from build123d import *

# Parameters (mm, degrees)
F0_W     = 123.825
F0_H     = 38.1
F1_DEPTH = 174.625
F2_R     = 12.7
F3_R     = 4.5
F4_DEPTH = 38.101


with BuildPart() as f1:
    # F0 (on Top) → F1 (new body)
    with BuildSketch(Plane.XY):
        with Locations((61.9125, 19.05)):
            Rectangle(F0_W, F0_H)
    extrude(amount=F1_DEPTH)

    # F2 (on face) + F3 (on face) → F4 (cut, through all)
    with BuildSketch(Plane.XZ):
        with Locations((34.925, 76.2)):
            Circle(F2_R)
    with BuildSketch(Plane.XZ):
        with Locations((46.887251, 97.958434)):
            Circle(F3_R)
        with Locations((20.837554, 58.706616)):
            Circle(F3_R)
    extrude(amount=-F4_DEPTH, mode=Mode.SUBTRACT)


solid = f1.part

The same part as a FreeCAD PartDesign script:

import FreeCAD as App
import Part
import Sketcher
Q = App.Units.Quantity

doc = App.newDocument("Part")
body = doc.addObject("PartDesign::Body", "Body")

# Sketch on XY plane
sketch1 = body.newObject("Sketcher::SketchObject", "Sketch")
sketch1.AttachmentSupport = (doc.getObject("XY_Plane"), [""])
sketch1.MapMode = "FlatFace"
sketch1.addGeometry([
    Part.LineSegment(App.Vector(0, 38, 0), App.Vector(0, 0, 0)),
    Part.LineSegment(App.Vector(0, 0, 0), App.Vector(124, 0, 0)),
    Part.LineSegment(App.Vector(124, 0, 0), App.Vector(124, 38, 0)),
    Part.LineSegment(App.Vector(124, 38, 0), App.Vector(0, 38, 0)),
], False)
sketch1.addConstraint([
    Sketcher.Constraint("Coincident", 0, 2, 1, 1),
    Sketcher.Constraint("Coincident", 1, 2, 2, 1),
    Sketcher.Constraint("Coincident", 2, 2, 3, 1),
    Sketcher.Constraint("Coincident", 3, 2, 0, 1),
    Sketcher.Constraint("Vertical", 0),
    Sketcher.Constraint("Horizontal", 1),
    Sketcher.Constraint("Vertical", 2),
    Sketcher.Constraint("Horizontal", 3),
    Sketcher.Constraint("Coincident", 0, 2, -1, 1),
    Sketcher.Constraint("DistanceY", 0, 2, 0, 1, Q("1.5 in")),
    Sketcher.Constraint("DistanceX", 1, 1, 1, 2, Q("4.875 in")),
])
pad1 = body.newObject("PartDesign::Pad", "Pad")
pad1.Profile = sketch1
pad1.Length = Q("6.875 in")

# Sketch on XZ plane
sketch2 = body.newObject("Sketcher::SketchObject", "Sketch001")
sketch2.AttachmentSupport = (doc.getObject("XZ_Plane"), [""])
sketch2.MapMode = "FlatFace"
sketch2.addGeometry([
    Part.Circle(App.Vector(34.9, 76.2, 0), App.Vector(0, 0, 1), 12.7),
    Part.Circle(App.Vector(46.9, 98, 0), App.Vector(0, 0, 1), 4.5),
    Part.Circle(App.Vector(20.8, 58.7, 0), App.Vector(0, 0, 1), 4.5),
], False)
sketch2.addConstraint([
    Sketcher.Constraint("Equal", 1, 2),
    Sketcher.Constraint("Diameter", 0, Q("1 in")),
    Sketcher.Constraint("DistanceY", -1, 1, 0, 3, Q("3 in")),
    Sketcher.Constraint("Diameter", 1, 9.0),
    Sketcher.Constraint("DistanceX", -1, 1, 0, 3, Q("1.375 in")),
    Sketcher.Constraint("DistanceX", -1, 1, 1, 3, 46.887251),
    Sketcher.Constraint("DistanceY", -1, 1, 1, 3, 97.958434),
    Sketcher.Constraint("DistanceX", -1, 1, 2, 3, 20.837554),
    Sketcher.Constraint("DistanceY", -1, 1, 2, 3, 58.706616),
])
pocket1 = body.newObject("PartDesign::Pocket", "Pocket")
pocket1.Profile = sketch2
pocket1.Type = "ThroughAll"

doc.recompute()
